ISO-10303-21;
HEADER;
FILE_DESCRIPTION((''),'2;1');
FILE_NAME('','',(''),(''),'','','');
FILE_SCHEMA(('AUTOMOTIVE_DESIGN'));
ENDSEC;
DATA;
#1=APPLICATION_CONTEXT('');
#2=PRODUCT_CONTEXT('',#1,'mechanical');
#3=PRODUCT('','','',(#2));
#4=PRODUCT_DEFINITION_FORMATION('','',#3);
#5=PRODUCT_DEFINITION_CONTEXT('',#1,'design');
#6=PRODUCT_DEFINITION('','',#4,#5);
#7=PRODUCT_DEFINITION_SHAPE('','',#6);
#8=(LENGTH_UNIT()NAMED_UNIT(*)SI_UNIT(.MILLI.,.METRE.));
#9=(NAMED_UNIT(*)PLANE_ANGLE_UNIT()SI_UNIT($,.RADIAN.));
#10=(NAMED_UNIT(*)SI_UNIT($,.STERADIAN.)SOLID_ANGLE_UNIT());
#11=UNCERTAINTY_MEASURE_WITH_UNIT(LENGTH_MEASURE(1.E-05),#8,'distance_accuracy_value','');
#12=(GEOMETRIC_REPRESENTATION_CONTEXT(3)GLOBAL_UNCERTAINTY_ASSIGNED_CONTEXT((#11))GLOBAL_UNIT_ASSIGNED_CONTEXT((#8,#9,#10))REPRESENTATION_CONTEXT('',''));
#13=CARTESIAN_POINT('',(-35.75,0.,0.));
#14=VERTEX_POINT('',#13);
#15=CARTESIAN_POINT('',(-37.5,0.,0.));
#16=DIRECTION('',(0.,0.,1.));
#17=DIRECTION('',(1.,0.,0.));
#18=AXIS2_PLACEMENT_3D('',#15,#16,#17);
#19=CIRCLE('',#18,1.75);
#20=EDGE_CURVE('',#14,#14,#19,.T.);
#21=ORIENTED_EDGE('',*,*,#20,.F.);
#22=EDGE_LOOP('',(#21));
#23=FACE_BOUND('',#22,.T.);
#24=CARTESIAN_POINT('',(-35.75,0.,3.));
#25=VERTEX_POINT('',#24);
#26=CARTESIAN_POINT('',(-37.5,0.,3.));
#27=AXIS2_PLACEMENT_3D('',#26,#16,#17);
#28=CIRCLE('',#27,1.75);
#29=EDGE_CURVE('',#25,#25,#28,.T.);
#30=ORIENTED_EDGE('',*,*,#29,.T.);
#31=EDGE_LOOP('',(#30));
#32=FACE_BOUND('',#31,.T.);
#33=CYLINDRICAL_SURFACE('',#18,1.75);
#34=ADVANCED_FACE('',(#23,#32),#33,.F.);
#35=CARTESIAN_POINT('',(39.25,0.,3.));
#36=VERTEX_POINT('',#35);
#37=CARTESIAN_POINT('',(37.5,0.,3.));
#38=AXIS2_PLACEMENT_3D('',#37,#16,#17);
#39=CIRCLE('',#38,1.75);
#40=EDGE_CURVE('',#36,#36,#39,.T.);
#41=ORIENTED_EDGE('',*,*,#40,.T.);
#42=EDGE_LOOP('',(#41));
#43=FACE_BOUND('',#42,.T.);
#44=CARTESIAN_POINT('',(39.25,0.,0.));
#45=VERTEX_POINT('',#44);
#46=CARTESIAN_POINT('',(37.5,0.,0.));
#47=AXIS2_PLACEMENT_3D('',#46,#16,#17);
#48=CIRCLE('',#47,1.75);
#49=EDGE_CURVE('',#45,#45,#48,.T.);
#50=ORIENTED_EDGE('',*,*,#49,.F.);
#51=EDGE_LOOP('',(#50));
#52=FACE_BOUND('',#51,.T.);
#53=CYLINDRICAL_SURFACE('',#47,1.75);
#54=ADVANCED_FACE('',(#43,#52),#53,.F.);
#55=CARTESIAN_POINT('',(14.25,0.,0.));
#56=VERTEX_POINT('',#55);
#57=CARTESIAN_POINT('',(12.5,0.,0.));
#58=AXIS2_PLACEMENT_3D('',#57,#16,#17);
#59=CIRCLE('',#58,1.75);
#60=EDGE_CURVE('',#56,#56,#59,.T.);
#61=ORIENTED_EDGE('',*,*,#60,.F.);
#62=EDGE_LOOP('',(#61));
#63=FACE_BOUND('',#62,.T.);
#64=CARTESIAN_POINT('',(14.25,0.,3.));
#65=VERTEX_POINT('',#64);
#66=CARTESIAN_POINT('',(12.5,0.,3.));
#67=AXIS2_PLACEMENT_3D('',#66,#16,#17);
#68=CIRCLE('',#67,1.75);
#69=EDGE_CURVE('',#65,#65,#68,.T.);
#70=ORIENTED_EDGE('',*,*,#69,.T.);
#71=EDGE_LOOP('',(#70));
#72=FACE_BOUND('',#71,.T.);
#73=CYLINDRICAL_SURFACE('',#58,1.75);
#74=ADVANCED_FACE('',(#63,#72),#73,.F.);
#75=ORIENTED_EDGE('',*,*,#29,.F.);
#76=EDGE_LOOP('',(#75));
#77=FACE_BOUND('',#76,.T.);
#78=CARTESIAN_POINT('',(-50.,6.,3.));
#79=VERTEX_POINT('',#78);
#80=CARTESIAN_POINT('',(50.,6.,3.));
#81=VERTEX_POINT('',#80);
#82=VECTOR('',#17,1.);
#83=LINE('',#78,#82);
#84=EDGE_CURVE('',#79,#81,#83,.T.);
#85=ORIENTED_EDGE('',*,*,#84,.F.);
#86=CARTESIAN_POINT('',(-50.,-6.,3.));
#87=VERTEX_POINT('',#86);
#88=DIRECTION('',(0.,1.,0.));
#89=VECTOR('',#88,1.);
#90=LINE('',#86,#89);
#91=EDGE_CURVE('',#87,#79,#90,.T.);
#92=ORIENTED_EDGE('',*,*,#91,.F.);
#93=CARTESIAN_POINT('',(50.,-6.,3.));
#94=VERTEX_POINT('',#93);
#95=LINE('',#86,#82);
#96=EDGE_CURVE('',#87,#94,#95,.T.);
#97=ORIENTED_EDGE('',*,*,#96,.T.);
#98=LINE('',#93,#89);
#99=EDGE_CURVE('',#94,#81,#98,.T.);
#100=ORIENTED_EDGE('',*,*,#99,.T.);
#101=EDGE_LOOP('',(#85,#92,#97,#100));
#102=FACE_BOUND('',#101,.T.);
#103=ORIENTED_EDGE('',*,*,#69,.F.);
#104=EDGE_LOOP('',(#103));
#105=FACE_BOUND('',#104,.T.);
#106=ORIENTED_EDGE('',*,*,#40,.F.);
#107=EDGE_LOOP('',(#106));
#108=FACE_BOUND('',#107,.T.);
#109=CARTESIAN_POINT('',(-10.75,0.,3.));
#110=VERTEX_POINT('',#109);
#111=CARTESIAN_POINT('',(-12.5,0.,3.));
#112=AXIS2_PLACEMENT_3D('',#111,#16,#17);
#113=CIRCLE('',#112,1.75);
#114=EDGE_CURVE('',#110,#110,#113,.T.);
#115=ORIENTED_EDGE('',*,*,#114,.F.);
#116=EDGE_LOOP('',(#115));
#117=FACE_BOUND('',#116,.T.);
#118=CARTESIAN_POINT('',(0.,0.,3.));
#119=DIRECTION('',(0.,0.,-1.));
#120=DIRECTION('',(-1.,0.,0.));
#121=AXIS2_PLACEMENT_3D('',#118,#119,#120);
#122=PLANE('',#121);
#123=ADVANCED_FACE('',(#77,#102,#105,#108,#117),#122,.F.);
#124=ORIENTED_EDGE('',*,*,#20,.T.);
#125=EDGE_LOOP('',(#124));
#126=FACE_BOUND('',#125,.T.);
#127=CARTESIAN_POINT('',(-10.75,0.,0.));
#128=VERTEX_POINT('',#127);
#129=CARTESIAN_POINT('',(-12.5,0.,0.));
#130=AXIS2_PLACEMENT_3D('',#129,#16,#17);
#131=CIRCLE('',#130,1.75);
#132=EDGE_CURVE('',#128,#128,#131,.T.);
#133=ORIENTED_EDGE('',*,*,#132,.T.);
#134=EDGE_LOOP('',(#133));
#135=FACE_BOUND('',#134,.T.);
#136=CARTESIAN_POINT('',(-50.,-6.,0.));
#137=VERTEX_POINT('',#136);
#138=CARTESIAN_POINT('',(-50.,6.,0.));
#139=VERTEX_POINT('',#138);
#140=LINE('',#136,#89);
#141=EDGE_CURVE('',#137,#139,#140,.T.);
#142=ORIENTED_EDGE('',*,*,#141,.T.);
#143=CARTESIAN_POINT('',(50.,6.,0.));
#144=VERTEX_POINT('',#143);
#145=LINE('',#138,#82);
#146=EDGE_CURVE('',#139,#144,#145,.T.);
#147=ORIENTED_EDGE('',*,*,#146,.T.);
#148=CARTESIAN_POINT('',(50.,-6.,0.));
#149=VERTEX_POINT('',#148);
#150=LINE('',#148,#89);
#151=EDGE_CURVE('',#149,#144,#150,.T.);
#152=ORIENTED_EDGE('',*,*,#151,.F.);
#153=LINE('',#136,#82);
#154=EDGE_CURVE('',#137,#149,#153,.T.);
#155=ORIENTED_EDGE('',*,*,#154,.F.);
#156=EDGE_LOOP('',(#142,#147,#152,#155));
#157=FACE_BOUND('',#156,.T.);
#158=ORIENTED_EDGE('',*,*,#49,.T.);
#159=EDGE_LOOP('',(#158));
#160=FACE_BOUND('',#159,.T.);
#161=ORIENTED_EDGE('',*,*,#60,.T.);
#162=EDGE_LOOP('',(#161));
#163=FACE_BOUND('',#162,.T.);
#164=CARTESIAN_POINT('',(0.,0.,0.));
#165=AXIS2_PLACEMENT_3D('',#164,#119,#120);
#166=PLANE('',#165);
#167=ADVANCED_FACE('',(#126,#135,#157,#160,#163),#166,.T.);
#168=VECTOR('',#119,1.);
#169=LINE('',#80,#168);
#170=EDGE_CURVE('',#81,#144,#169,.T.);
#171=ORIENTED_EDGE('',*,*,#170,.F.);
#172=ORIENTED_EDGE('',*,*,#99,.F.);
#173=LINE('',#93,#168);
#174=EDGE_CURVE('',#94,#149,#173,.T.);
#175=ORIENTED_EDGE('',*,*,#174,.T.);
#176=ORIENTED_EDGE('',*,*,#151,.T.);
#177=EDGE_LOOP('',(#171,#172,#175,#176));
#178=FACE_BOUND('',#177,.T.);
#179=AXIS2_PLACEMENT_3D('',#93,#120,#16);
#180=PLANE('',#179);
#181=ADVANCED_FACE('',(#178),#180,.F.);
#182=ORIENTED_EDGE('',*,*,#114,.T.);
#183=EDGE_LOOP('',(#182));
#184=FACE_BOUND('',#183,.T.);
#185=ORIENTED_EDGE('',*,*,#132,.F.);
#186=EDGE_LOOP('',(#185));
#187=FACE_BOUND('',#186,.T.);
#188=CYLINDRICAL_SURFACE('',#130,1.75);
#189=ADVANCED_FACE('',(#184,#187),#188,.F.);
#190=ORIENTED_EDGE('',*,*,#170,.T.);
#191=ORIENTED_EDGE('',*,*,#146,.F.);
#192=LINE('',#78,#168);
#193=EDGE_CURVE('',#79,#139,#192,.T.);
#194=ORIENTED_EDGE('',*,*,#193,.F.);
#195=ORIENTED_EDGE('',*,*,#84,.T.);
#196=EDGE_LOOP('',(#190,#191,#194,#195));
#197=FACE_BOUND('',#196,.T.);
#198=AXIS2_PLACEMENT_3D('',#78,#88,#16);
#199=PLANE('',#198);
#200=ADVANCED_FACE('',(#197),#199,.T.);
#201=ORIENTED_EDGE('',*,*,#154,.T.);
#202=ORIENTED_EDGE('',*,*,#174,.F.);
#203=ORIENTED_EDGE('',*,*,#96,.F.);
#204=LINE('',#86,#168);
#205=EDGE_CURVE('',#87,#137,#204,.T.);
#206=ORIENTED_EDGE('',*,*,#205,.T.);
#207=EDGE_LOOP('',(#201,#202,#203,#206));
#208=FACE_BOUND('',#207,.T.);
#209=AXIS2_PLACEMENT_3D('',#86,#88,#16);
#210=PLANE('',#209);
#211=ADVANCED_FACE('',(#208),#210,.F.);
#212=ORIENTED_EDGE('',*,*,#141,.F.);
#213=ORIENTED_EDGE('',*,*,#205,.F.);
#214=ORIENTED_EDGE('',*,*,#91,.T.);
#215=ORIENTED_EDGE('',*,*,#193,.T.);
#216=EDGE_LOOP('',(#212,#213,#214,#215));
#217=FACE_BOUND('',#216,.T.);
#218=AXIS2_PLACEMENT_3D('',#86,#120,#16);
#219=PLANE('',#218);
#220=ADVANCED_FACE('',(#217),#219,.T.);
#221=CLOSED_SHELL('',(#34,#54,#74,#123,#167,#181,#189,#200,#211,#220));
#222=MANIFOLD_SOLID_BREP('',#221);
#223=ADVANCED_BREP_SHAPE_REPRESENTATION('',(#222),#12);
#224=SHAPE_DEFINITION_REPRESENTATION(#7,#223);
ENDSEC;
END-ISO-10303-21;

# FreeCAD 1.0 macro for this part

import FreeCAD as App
import Part
import Sketcher
from FreeCAD import Vector
Q = App.Units.Quantity

doc = App.newDocument("Part")
body = doc.addObject("PartDesign::Body", "Body")

# Sketch on XY plane
sketch1 = doc.addObject("Sketcher::SketchObject", "Sketch")
body.addObject(sketch1)
sketch1.AttachmentSupport = (doc.XY_Plane, [""])
sketch1.MapMode = "FlatFace"
sketch1.addGeometry(Part.LineSegment(Vector(-50, 6, 0), Vector(-50, -6, 0)), False)
sketch1.addGeometry(Part.LineSegment(Vector(-50, -6, 0), Vector(50, -6, 0)), False)
sketch1.addGeometry(Part.LineSegment(Vector(50, -6, 0), Vector(50, 6, 0)), False)
sketch1.addGeometry(Part.LineSegment(Vector(50, 6, 0), Vector(-50, 6, 0)), False)
sketch1.addConstraint(Sketcher.Constraint("Coincident", 0, 2, 1, 1))
sketch1.addConstraint(Sketcher.Constraint("Coincident", 1, 2, 2, 1))
sketch1.addConstraint(Sketcher.Constraint("Coincident", 2, 2, 3, 1))
sketch1.addConstraint(Sketcher.Constraint("Coincident", 3, 2, 0, 1))
sketch1.addConstraint(Sketcher.Constraint("Vertical", 0))
sketch1.addConstraint(Sketcher.Constraint("Horizontal", 1))
sketch1.addConstraint(Sketcher.Constraint("Vertical", 2))
sketch1.addConstraint(Sketcher.Constraint("Horizontal", 3))
sketch1.addConstraint(Sketcher.Constraint("Symmetric", 0, 2, 2, 2, -1, 1))
sketch1.addConstraint(Sketcher.Constraint("DistanceX", 1, 1, 1, 2, Q("100 mm")))
sketch1.addConstraint(Sketcher.Constraint("DistanceY", 0, 2, 0, 1, Q("12 mm")))
pad1 = doc.addObject("PartDesign::Pad", "Pad")
body.addObject(pad1)
pad1.Profile = sketch1
pad1.Length = 3

# Sketch on XY plane
sketch2 = doc.addObject("Sketcher::SketchObject", "Sketch001")
body.addObject(sketch2)
sketch2.AttachmentSupport = (doc.XY_Plane, [""])
sketch2.MapMode = "FlatFace"
sketch2.AttachmentOffset = App.Placement(Vector(0, 0, 3), App.Rotation())
sketch2.addGeometry(Part.Circle(Vector(37.5, 0, 0), Vector(0, 0, 1), 1.75), False)
sketch2.addConstraint(Sketcher.Constraint("PointOnObject", 0, 3, -1))
sketch2.addConstraint(Sketcher.Constraint("Diameter", 0, Q("3.5 mm")))
sketch2.addConstraint(Sketcher.Constraint("DistanceX", -1, 1, 0, 3, Q("37.5 mm")))
pocket1 = doc.addObject("PartDesign::Pocket", "Pocket")
body.addObject(pocket1)
pocket1.Profile = sketch2
pocket1.Type = "ThroughAll"
doc.recompute()

linearpattern = doc.addObject("PartDesign::LinearPattern", "LinearPattern")
body.addObject(linearpattern)
linearpattern.Originals = [pocket1]
linearpattern.Direction = (doc.X_Axis, [""])
linearpattern.Mode = "offset"
linearpattern.Offset = 25
linearpattern.Occurrences = 4
linearpattern.Reversed = True
body.Tip = linearpattern

doc.recompute()
